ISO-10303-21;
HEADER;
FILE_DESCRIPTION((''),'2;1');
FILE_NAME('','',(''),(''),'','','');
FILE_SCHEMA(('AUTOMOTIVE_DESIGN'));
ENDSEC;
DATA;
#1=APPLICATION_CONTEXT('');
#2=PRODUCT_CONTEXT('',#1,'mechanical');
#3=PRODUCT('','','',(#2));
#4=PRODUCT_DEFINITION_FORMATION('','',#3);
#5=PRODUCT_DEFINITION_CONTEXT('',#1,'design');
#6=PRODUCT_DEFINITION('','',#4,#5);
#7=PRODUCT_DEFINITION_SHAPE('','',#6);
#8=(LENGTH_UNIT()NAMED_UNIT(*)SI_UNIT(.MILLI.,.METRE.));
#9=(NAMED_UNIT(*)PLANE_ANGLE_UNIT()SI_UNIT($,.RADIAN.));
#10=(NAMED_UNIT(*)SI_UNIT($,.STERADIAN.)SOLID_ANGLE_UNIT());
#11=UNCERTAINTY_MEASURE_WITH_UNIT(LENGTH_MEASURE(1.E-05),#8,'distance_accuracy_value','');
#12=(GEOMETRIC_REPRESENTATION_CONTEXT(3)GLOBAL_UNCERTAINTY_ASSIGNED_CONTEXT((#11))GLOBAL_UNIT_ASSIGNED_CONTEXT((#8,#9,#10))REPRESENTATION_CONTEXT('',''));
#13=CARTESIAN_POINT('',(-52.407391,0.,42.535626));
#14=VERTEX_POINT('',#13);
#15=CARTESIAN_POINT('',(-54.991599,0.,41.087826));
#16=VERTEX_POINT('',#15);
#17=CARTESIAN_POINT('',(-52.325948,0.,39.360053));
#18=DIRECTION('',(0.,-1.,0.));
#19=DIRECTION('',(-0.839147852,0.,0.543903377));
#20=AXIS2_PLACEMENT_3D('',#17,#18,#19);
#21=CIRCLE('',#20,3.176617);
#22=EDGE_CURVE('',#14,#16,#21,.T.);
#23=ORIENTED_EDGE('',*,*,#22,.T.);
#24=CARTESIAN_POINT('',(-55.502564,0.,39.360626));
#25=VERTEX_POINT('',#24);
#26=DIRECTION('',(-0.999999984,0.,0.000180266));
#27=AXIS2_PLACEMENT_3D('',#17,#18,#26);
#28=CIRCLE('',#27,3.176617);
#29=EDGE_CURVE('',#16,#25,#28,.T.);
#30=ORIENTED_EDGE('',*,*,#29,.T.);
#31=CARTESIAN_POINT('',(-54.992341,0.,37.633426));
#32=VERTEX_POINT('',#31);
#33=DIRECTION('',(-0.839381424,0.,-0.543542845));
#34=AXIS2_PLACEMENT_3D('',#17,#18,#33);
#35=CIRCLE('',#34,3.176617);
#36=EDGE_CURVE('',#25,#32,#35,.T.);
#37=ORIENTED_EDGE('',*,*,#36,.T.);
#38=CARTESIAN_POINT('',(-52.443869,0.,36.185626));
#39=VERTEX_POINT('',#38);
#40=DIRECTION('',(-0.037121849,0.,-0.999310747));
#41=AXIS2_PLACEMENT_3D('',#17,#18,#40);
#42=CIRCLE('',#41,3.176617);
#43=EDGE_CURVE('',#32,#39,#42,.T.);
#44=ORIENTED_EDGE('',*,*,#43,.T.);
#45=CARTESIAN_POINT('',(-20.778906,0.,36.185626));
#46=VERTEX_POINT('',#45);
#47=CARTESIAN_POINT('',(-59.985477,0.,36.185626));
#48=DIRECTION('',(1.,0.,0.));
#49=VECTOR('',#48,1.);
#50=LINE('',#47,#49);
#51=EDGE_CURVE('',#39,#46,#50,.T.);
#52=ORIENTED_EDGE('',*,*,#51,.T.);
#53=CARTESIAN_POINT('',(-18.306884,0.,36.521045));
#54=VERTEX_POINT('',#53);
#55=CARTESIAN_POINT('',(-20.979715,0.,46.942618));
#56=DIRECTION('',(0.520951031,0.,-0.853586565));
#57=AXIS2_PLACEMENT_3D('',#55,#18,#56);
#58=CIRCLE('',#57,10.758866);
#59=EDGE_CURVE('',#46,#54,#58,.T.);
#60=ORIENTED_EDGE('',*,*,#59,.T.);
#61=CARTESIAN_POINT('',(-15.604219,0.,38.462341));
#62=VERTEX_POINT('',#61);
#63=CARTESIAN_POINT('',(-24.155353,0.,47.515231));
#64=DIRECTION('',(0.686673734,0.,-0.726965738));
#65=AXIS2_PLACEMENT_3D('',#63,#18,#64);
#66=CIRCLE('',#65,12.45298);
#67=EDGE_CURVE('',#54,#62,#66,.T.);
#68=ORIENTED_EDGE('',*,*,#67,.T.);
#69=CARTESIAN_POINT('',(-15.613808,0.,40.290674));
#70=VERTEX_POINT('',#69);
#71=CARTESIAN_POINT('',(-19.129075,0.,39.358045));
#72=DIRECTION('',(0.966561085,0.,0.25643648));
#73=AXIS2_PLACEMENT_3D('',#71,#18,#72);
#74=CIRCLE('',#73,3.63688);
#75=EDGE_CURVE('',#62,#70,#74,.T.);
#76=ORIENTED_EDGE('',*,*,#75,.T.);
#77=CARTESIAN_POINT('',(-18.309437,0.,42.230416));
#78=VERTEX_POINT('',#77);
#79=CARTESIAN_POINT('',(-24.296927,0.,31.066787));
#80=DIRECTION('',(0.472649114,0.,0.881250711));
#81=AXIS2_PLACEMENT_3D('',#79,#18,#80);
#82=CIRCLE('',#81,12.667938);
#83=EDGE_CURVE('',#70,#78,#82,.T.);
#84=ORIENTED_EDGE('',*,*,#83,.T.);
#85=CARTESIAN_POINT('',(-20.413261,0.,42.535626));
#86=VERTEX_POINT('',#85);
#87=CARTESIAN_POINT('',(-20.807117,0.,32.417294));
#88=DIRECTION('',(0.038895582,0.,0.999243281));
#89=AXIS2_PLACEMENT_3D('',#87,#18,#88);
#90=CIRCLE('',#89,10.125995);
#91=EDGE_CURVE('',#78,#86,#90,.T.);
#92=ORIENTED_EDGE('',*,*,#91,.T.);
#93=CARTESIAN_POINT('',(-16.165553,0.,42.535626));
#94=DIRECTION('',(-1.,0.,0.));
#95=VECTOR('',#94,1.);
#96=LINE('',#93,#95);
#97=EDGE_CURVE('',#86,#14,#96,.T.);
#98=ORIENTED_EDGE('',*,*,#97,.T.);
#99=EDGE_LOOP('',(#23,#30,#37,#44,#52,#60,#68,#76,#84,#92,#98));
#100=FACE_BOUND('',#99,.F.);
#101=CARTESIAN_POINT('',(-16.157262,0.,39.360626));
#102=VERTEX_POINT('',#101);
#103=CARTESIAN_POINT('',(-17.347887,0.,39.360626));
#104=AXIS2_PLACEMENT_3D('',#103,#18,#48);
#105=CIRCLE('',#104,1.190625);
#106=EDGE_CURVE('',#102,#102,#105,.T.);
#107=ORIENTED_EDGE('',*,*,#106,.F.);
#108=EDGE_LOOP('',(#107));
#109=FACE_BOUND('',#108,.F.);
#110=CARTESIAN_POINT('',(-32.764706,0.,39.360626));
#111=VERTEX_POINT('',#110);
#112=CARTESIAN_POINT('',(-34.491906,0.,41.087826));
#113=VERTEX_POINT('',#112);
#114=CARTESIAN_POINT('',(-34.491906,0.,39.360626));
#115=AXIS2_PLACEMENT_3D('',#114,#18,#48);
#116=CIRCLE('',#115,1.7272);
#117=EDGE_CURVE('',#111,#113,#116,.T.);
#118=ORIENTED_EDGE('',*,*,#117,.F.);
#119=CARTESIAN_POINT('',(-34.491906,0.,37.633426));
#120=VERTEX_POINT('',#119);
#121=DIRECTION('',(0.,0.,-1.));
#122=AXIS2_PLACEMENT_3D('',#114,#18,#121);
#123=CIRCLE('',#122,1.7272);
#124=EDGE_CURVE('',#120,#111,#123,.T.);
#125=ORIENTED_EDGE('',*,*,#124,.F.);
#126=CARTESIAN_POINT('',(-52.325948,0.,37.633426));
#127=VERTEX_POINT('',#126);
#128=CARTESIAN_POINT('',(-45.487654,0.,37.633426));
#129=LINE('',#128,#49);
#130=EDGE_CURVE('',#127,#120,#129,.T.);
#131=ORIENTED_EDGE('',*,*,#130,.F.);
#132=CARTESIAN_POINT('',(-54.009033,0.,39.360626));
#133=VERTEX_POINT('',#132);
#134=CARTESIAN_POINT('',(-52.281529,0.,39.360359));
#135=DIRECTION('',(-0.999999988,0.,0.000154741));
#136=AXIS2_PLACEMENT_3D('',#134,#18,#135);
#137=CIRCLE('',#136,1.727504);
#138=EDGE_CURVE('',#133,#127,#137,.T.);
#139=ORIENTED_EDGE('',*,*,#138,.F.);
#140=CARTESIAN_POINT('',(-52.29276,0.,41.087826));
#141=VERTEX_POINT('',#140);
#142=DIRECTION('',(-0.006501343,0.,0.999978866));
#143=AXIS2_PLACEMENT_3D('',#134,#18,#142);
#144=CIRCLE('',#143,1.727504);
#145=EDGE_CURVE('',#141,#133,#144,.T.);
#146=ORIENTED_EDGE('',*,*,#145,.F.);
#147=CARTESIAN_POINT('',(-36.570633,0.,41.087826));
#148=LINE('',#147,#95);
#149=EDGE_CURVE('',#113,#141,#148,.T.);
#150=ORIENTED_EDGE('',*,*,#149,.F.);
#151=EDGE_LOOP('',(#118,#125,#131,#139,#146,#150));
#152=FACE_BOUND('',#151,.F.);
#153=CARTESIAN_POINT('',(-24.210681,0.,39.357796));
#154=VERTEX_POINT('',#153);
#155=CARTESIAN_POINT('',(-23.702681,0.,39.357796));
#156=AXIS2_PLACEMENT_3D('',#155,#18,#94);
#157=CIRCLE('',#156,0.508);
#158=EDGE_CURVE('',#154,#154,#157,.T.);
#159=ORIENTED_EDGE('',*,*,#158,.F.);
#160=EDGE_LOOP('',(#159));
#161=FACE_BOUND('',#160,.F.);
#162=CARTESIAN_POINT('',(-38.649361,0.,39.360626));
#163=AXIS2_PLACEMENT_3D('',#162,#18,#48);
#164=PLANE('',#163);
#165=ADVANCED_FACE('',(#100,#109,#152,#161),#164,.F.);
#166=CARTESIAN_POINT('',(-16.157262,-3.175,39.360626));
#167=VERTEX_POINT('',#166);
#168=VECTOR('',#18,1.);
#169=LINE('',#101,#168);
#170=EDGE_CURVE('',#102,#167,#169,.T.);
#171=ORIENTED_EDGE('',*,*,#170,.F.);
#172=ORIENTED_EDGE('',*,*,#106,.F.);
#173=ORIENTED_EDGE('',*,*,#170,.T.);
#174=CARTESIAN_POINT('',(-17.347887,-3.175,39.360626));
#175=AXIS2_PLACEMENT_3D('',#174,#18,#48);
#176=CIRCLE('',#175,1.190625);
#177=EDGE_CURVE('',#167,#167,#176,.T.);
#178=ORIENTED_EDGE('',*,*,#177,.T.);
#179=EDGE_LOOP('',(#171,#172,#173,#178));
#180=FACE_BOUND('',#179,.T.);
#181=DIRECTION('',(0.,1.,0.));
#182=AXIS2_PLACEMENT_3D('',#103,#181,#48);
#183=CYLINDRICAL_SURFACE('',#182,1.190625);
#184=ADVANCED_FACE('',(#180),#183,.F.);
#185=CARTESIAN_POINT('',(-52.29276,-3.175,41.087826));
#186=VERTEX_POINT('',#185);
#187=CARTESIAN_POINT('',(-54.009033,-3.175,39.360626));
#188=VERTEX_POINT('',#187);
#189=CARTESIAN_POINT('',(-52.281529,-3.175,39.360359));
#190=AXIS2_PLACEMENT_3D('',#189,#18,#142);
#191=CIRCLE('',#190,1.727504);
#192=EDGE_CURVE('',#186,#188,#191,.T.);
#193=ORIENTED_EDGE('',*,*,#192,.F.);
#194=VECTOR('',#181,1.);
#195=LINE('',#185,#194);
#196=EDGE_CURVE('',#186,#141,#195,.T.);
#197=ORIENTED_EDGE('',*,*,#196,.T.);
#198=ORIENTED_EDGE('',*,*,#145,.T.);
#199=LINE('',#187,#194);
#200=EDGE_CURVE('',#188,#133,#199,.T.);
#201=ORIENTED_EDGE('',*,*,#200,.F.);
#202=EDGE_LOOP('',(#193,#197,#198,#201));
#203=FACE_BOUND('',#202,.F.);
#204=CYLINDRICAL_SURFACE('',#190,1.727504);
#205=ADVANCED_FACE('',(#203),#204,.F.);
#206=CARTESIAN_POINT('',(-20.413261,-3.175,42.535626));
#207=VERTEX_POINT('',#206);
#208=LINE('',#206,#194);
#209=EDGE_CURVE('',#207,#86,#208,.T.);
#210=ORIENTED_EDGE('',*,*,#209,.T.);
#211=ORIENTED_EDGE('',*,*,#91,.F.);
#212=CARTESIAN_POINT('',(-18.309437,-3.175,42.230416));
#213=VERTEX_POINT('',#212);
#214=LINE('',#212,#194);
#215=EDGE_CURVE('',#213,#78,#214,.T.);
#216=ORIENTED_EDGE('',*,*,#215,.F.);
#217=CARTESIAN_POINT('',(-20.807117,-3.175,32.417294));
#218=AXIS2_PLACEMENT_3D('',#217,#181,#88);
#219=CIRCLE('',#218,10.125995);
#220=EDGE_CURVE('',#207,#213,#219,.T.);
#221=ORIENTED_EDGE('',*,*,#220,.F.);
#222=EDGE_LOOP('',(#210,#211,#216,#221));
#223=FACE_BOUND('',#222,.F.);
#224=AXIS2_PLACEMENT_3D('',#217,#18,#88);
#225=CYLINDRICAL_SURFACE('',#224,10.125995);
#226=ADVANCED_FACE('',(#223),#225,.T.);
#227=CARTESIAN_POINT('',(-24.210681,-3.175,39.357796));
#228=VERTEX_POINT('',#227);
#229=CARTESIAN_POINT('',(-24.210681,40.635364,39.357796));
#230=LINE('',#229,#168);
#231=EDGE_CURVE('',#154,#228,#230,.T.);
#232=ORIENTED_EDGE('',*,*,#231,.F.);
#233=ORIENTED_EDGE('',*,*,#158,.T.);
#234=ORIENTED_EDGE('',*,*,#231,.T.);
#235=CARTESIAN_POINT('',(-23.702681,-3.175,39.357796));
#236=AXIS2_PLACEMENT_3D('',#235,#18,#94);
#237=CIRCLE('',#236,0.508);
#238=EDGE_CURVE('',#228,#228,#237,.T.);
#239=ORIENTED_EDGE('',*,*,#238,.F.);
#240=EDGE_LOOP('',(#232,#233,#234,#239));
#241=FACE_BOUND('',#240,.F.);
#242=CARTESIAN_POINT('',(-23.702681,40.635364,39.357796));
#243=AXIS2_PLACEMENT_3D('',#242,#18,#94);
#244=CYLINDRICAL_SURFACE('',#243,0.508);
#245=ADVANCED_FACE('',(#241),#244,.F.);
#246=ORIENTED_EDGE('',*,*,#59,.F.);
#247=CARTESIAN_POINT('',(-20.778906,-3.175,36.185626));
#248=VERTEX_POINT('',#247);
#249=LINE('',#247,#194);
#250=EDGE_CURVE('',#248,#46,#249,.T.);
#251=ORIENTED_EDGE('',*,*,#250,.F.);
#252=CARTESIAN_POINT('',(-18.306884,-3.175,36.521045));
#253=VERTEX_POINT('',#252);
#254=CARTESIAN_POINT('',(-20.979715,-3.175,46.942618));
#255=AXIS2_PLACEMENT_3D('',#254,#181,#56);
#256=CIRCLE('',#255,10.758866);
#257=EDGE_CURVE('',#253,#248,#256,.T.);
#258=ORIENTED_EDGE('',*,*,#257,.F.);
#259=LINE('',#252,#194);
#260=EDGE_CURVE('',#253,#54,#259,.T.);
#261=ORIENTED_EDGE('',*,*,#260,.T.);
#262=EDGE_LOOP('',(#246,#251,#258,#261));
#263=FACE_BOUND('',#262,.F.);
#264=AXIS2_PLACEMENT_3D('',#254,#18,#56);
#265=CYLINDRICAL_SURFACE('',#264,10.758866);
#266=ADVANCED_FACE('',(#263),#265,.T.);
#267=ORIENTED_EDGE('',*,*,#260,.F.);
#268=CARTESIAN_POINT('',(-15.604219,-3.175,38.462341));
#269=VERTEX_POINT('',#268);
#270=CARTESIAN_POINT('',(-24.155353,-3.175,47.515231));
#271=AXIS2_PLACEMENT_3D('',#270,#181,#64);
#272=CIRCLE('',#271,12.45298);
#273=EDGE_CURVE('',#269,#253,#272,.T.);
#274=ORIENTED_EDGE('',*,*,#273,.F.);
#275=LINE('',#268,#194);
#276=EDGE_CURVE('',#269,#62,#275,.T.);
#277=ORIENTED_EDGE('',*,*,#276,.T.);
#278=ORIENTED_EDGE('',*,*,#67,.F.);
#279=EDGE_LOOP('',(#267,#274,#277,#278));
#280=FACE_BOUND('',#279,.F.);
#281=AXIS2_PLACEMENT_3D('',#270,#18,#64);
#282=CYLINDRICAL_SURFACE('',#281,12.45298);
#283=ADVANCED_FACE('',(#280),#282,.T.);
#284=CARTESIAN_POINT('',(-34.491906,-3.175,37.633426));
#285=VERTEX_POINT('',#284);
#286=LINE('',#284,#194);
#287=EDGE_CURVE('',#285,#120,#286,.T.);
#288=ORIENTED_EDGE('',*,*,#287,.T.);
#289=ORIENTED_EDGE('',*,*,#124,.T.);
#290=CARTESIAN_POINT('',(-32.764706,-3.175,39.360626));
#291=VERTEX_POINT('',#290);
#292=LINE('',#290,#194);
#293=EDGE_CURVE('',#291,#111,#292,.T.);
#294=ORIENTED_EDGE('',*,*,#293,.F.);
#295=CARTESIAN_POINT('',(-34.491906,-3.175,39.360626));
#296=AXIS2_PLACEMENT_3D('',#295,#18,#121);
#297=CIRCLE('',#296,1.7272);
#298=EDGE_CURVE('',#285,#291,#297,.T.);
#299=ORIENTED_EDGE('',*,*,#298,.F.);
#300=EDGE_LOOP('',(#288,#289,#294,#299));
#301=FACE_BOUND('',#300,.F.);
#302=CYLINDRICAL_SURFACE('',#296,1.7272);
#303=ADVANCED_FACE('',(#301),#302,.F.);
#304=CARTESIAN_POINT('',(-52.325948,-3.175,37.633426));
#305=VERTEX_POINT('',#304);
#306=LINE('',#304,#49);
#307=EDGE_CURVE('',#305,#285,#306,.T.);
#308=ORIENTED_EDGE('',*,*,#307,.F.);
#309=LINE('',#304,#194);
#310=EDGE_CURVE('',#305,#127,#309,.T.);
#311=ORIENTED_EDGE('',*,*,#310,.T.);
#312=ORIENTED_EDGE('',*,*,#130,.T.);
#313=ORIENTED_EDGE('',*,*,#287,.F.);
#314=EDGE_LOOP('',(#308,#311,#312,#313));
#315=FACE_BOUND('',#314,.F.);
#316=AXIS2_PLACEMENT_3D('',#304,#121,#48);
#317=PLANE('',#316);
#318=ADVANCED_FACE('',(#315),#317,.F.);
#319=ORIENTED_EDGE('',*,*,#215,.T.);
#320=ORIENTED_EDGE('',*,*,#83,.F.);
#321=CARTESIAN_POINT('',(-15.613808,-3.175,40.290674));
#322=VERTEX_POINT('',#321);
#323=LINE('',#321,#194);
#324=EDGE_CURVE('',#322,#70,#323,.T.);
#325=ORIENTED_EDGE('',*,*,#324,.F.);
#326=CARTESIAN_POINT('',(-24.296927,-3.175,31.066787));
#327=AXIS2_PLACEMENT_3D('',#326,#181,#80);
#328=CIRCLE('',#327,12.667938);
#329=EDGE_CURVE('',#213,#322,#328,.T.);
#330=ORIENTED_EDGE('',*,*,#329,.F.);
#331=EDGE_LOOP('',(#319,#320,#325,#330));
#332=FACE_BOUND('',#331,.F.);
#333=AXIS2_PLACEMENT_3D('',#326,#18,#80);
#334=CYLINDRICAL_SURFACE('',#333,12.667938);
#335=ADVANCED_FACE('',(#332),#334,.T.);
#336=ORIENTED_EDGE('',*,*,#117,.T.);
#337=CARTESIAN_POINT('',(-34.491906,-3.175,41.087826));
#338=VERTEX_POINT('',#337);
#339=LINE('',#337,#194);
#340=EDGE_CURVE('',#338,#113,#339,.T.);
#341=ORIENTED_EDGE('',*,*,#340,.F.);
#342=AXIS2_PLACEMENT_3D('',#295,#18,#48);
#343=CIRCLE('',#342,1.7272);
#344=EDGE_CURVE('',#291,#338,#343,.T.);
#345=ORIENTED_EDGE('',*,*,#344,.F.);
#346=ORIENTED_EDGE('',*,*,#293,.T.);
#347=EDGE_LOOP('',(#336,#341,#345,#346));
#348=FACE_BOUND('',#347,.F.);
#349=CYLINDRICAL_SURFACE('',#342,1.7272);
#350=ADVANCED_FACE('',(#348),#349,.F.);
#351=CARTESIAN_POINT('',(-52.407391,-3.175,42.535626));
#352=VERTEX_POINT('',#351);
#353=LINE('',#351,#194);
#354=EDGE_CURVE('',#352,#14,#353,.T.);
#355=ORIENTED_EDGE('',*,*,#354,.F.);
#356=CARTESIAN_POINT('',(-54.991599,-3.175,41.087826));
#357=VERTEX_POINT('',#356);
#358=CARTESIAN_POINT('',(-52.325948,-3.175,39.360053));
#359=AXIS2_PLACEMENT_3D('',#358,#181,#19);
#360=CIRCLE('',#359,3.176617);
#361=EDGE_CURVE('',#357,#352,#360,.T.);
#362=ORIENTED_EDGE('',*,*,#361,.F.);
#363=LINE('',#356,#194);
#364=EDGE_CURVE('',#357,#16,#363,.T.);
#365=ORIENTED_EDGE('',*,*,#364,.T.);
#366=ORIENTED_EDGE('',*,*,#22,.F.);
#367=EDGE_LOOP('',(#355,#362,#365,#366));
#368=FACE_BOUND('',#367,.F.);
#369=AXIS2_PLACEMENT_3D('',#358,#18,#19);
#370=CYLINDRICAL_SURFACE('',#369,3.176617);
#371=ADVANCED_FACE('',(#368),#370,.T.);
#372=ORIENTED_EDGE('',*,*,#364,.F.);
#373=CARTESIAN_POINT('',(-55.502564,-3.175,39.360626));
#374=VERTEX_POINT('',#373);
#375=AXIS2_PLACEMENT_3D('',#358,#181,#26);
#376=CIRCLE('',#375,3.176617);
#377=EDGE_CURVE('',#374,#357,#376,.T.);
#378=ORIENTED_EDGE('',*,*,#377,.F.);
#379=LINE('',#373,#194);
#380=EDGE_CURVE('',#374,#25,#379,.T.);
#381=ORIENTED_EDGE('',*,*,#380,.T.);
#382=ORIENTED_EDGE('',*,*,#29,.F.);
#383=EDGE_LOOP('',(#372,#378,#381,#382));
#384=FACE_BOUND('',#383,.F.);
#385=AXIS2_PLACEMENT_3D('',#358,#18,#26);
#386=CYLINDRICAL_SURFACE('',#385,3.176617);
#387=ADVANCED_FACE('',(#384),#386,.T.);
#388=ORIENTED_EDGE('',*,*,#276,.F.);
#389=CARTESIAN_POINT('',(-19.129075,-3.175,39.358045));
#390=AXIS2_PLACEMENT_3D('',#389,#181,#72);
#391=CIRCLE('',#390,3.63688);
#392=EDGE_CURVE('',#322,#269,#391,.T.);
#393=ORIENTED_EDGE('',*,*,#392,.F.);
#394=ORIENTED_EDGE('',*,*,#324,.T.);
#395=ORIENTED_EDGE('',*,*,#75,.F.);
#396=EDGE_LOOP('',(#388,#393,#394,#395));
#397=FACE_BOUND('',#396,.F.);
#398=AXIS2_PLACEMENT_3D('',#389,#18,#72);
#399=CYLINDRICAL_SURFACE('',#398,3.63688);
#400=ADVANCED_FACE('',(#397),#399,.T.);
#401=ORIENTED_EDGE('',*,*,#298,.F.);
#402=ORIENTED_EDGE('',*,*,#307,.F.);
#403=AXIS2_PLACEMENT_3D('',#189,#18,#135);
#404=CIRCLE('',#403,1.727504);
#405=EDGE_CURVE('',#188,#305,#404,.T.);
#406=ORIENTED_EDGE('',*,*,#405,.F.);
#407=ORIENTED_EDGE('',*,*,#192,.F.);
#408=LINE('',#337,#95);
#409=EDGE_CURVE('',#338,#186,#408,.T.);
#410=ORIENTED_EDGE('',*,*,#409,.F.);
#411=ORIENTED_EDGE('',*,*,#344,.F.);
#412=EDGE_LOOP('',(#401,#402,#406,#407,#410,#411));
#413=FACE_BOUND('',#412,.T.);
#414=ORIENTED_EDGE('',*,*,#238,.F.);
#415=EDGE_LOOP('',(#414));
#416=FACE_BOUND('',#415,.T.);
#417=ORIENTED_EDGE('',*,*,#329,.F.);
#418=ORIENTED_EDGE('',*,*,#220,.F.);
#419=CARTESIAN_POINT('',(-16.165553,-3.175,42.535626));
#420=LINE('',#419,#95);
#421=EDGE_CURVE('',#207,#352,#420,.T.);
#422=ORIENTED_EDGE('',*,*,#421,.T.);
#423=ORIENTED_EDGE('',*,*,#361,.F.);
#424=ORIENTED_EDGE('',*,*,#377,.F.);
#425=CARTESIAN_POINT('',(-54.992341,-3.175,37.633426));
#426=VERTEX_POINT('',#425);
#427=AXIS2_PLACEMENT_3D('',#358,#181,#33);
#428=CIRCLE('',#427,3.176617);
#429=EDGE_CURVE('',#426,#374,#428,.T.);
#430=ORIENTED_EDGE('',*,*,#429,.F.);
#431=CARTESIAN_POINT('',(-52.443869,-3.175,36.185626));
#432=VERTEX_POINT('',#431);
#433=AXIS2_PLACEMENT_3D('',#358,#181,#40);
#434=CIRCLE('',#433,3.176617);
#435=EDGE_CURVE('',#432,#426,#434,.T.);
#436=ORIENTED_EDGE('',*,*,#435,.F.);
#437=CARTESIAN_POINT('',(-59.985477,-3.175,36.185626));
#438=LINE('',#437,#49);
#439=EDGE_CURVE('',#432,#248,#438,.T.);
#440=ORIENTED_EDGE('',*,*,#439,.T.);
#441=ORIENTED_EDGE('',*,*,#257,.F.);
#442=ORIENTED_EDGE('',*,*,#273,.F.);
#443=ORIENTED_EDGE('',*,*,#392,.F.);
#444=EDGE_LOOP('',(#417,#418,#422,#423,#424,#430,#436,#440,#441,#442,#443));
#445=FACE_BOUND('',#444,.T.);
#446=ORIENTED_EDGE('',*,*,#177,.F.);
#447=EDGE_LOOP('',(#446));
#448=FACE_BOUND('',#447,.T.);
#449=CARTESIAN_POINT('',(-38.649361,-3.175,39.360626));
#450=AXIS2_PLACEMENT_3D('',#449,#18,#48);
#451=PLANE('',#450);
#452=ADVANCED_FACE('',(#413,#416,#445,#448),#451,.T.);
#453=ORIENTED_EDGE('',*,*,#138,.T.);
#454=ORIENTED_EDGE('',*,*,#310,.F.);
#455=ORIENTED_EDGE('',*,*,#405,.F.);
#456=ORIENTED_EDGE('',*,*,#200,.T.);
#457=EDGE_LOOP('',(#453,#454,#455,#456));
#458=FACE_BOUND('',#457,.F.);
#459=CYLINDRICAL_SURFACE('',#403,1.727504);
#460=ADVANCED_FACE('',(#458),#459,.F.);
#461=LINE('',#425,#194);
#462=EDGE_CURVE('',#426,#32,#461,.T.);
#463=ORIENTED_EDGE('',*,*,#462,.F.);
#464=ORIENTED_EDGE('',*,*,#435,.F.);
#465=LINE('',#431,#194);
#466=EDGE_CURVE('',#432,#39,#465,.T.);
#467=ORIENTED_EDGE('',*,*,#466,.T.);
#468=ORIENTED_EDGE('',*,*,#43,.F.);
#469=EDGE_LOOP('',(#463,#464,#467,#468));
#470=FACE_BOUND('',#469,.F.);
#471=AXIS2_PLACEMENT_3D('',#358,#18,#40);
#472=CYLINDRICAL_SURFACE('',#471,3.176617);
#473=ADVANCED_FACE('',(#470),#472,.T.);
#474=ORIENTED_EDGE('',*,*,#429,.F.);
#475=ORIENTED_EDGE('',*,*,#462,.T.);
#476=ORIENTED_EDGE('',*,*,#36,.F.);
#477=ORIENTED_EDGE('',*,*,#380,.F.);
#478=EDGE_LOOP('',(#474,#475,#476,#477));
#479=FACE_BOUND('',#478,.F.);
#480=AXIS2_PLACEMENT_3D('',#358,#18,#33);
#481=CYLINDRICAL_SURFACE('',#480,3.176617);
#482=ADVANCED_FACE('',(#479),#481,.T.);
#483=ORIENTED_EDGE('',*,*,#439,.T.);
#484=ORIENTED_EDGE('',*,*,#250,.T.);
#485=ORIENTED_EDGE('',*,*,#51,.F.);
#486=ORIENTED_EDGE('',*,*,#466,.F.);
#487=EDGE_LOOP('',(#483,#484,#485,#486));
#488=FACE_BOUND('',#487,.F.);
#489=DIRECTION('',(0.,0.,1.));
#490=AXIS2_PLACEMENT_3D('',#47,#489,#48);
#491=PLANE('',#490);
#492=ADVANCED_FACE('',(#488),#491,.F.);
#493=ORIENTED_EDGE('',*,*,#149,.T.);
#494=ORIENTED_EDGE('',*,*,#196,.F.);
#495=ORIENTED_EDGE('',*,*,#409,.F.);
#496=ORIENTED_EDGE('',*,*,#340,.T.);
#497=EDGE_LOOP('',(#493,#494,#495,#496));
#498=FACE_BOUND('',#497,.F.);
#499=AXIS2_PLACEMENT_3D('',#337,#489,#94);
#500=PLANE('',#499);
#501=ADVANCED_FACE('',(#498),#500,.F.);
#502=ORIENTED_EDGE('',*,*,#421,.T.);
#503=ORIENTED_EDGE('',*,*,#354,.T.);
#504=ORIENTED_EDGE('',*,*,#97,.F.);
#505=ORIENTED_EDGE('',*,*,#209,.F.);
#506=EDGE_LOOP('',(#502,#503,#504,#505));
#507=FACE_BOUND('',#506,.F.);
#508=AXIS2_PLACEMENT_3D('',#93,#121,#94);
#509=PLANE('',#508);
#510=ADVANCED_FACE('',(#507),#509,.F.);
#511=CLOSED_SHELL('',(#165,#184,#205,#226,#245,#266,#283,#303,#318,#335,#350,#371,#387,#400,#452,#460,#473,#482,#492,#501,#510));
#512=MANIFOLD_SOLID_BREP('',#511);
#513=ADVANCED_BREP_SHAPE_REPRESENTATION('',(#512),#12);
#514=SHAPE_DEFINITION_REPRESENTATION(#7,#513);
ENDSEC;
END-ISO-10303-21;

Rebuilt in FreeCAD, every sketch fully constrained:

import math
import FreeCAD as App
import Part
import Sketcher

V = App.Vector
Q = App.Units.Quantity

doc = App.newDocument("Part")
body = doc.addObject("PartDesign::Body", "Body")

# Sketch on XZ plane
sketch1 = body.newObject("Sketcher::SketchObject", "Sketch")
sketch1.AttachmentSupport = (doc.getObject("XZ_Plane"), [""])
sketch1.MapMode = "FlatFace"
sketch1.addGeometry([
    Part.LineSegment(V(-60, 36.2, 0), V(-16.2, 36.2, 0)),  # 0
    Part.LineSegment(V(-16.2, 36.2, 0), V(-14.5, 39.4, 0)),  # 1
    Part.LineSegment(V(-14.5, 39.4, 0), V(-16.2, 42.5, 0)),  # 2
    Part.LineSegment(V(-16.2, 42.5, 0), V(-60, 42.5, 0)),  # 3
    Part.ArcOfCircle(Part.Circle(V(-59.9, 39.4, 0), V(0, 0, 1), 3.2), math.radians(92), math.radians(268)),  # 4
    Part.Circle(V(-17.3, 39.4, 0), V(0, 0, 1), 1.2),  # 5
], False)
sketch1.addConstraint([
    Sketcher.Constraint("Coincident", 0, 2, 1, 1),
    Sketcher.Constraint("Coincident", 1, 2, 2, 1),
    Sketcher.Constraint("Coincident", 2, 2, 3, 1),
    Sketcher.Constraint("Coincident", 3, 2, 4, 1),
    Sketcher.Constraint("Coincident", 4, 2, 0, 1),
    Sketcher.Constraint("Horizontal", 0),
    Sketcher.Constraint("Horizontal", 3),
    Sketcher.Constraint("Horizontal", 4, 3, 5, 3),
    Sketcher.Constraint("Horizontal", 5, 3, 1, 2),
    Sketcher.Constraint("Vertical", 0, 2, 2, 2),
    Sketcher.Constraint("Vertical", 3, 2, 4, 2),
    Sketcher.Constraint("Diameter", 5, Q("0.09375 in")),
    Sketcher.Constraint("DistanceY", 0, 2, 2, 2, Q("0.25 in")),
    Sketcher.Constraint("Radius", 4, Q("3.176379 mm")),
    Sketcher.Constraint("DistanceX", 0, 1, 0, 2, Q("43.819925 mm")),
    Sketcher.Constraint("DistanceX", 4, 3, 5, 3, Q("42.544018 mm")),
    Sketcher.Constraint("DistanceX", 0, 2, 1, 2, Q("1.62754 mm")),
    Sketcher.Constraint("DistanceX", 4, 3, -1, 1, Q("59.891906 mm")),
    Sketcher.Constraint("DistanceY", -1, 1, 4, 3, Q("39.360626 mm")),
])
pad1 = body.newObject("PartDesign::Pad", "Pad")
pad1.Profile = sketch1
pad1.Length = Q("0.125 in")

# Sketch on XZ plane
sketch2 = body.newObject("Sketcher::SketchObject", "Sketch001")
sketch2.AttachmentSupport = (doc.getObject("XZ_Plane"), [""])
sketch2.MapMode = "FlatFace"
sketch2.AttachmentOffset = App.Placement(V(0, 0, 0.125 * 25.4), App.Rotation())
sketch2.addGeometry([
    Part.ArcOfCircle(Part.Circle(V(-18.3, 39.3, 0), V(0, 0, 1), 3.3), math.radians(-74), math.radians(-29)),  # 0
    Part.LineSegment(V(-17.3, 36.2, 0), V(-16.2, 36.2, 0)),  # 1
    Part.LineSegment(V(-16.2, 36.2, 0), V(-15.4, 37.8, 0)),  # 2
    Part.LineSegment(V(-15.4, 37.8, 0), V(-14.5, 39.4, 0)),  # 3
    Part.LineSegment(V(-14.5, 39.4, 0), V(-15.4, 40.9, 0)),  # 4
    Part.LineSegment(V(-15.4, 40.9, 0), V(-16.2, 42.5, 0)),  # 5
    Part.LineSegment(V(-16.2, 42.5, 0), V(-17.5, 42.5, 0)),  # 6
    Part.ArcOfCircle(Part.Circle(V(-18.3, 39.3, 0), V(0, 0, 1), 3.3), math.radians(30), math.radians(76)),  # 7
    Part.ArcOfCircle(Part.Circle(V(-18.3, 39.3, 0), V(0, 0, 1), 3.3), math.radians(-29), math.radians(30)),  # 8
], False)
sketch2.addConstraint([
    Sketcher.Constraint("Coincident", 0, 1, 1, 1),
    Sketcher.Constraint("Coincident", 1, 2, 2, 1),
    Sketcher.Constraint("Coincident", 2, 2, 3, 1),
    Sketcher.Constraint("Coincident", 3, 2, 4, 1),
    Sketcher.Constraint("Coincident", 4, 2, 5, 1),
    Sketcher.Constraint("Coincident", 5, 2, 6, 1),
    Sketcher.Constraint("Coincident", 6, 2, 7, 2),
    Sketcher.Constraint("Tangent", 7, 1, 8, 2),
    Sketcher.Constraint("Tangent", 8, 1, 0, 2),
    Sketcher.Constraint("Horizontal", 1),
    Sketcher.Constraint("Horizontal", 6),
    Sketcher.Constraint("Coincident", 7, 3, 0, 3),
    Sketcher.Constraint("Parallel", 2, 3),
    Sketcher.Constraint("Parallel", 4, 5),
    Sketcher.Constraint("Vertical", 2, 2, 4, 2),
    Sketcher.Constraint("Vertical", 1, 2, 5, 2),
    Sketcher.Constraint("Equal", 2, 3),
    Sketcher.Constraint("Equal", 3, 4),
    Sketcher.Constraint("DistanceY", 1, 2, 2, 2, Q("0.0625 in")),
    Sketcher.Constraint("Radius", 0, Q("3.292503 mm")),
    Sketcher.Constraint("DistanceX", 0, 3, 0, 1, Q("0.930201 mm")),
    Sketcher.Constraint("Distance", 2, Q("1.783922 mm")),
    Sketcher.Constraint("DistanceX", 1, 1, 1, 2, Q("1.165006 mm")),
    Sketcher.Constraint("DistanceX", 0, 3, -1, 1, Q("18.26076 mm")),
    Sketcher.Constraint("DistanceX", 7, 1, -1, 1, Q("15.40434 mm")),
    Sketcher.Constraint("DistanceY", -1, 1, 7, 1, Q("40.981508 mm")),
    Sketcher.Constraint("DistanceX", 8, 1, 2, 2, Q("0.023089 mm")),
])
pocket1 = body.newObject("PartDesign::Pocket", "Pocket")
pocket1.Profile = sketch2
pocket1.Length = Q("1 in")

# Sketch on XZ plane
sketch3 = body.newObject("Sketcher::SketchObject", "Sketch002")
sketch3.AttachmentSupport = (doc.getObject("XZ_Plane"), [""])
sketch3.MapMode = "FlatFace"
sketch3.AttachmentOffset = App.Placement(V(0, 0, 0.125 * 25.4), App.Rotation())
sketch3.addGeometry([
    Part.ArcOfCircle(Part.Circle(V(-20.807, 32.417, 0), V(0, 0, 1), 10.126), math.radians(58), math.radians(88)),  # 0
    Part.ArcOfCircle(Part.Circle(V(-18.261, 39.344, 0), V(0, 0, 1), 3.293), math.radians(30), math.radians(76)),  # 1
    Part.LineSegment(V(-17.452, 42.536, 0), V(-20.413, 42.536, 0)),  # 2
    Part.ArcOfCircle(Part.Circle(V(-18.261, 39.344, 0), V(0, 0, 1), 3.293), math.radians(-29), math.radians(30)),  # 3
    Part.ArcOfCircle(Part.Circle(V(-20.98, 46.943, 0), V(0, 0, 1), 10.759), math.radians(-58.6), math.radians(-58.46)),  # 4
    Part.LineSegment(V(-15.352, 37.773, 0), V(-14.538, 39.361, 0)),  # 5
    Part.LineSegment(V(-14.538, 39.361, 0), V(-15.352, 40.948, 0)),  # 6
    Part.ArcOfCircle(Part.Circle(V(-20.807, 32.417, 0), V(0, 0, 1), 10.126), math.radians(57.4), math.radians(57.75)),  # 7
    Part.LineSegment(V(-20.779, 36.186, 0), V(-17.331, 36.186, 0)),  # 8
    Part.ArcOfCircle(Part.Circle(V(-18.261, 39.344, 0), V(0, 0, 1), 3.293), math.radians(-74), math.radians(-29)),  # 9
    Part.ArcOfCircle(Part.Circle(V(-20.98, 46.943, 0), V(0, 0, 1), 10.759), math.radians(-89), math.radians(-59)),  # 10
], False)
sketch3.addConstraint([
    Sketcher.Constraint("Coincident", 0, 1, 1, 1),
    Sketcher.Constraint("Coincident", 1, 2, 2, 1),
    Sketcher.Constraint("Coincident", 2, 2, 0, 2),
    Sketcher.Constraint("Coincident", 3, 1, 4, 1),
    Sketcher.Constraint("Coincident", 4, 2, 5, 1),
    Sketcher.Constraint("Coincident", 5, 2, 6, 1),
    Sketcher.Constraint("Coincident", 6, 2, 7, 1),
    Sketcher.Constraint("Coincident", 7, 2, 3, 2),
    Sketcher.Constraint("Coincident", 8, 2, 9, 1),
    Sketcher.Constraint("Coincident", 9, 2, 10, 2),
    Sketcher.Constraint("Coincident", 10, 1, 8, 1),
    Sketcher.Constraint("Horizontal", 2),
    Sketcher.Constraint("Horizontal", 8),
    Sketcher.Constraint("Coincident", 3, 3, 1, 3),
    Sketcher.Constraint("Coincident", 7, 3, 0, 3),
    Sketcher.Constraint("Coincident", 9, 3, 1, 3),
    Sketcher.Constraint("Coincident", 7, 2, 0, 1),
    Sketcher.Constraint("Coincident", 9, 2, 3, 1),
    Sketcher.Constraint("Vertical", 4, 2, 6, 2),
    Sketcher.Constraint("Equal", 5, 6),
    Sketcher.Constraint("Radius", 7, Q("10.126001 mm")),
    Sketcher.Constraint("DistanceY", 4, 2, 5, 2, Q("0.0625 in")),
    Sketcher.Constraint("DistanceY", 6, 2, 1, 2, Q("0.0625 in")),
    Sketcher.Constraint("DistanceY", 8, 2, 4, 2, Q("0.0625 in")),
    Sketcher.Constraint("Radius", 1, Q("3.292503 mm")),
    Sketcher.Constraint("Radius", 4, Q("10.758887 mm")),
    Sketcher.Constraint("Radius", 10, Q("10.758866 mm")),
    Sketcher.Constraint("DistanceX", 2, 2, 3, 3, Q("2.152501 mm")),
    Sketcher.Constraint("DistanceX", 9, 3, 8, 2, Q("0.930201 mm")),
    Sketcher.Constraint("Distance", 5, Q("1.783922 mm")),
    Sketcher.Constraint("DistanceX", 8, 1, 8, 2, Q("3.448347 mm")),
    Sketcher.Constraint("DistanceX", 1, 3, -1, 1, Q("18.26076 mm")),
    Sketcher.Constraint("DistanceX", 7, 3, -1, 1, Q("20.807121 mm")),
    Sketcher.Constraint("DistanceY", -1, 1, 7, 3, Q("32.417288 mm")),
    Sketcher.Constraint("DistanceY", 3, 3, 4, 3, Q("7.598639 mm")),
])
pocket2 = body.newObject("PartDesign::Pocket", "Pocket001")
pocket2.Profile = sketch3
pocket2.Length = Q("1 in")

# Sketch on XZ plane
sketch4 = body.newObject("Sketcher::SketchObject", "Sketch003")
sketch4.AttachmentSupport = (doc.getObject("XZ_Plane"), [""])
sketch4.MapMode = "FlatFace"
sketch4.AttachmentOffset = App.Placement(V(0, 0, 0.125 * 25.4), App.Rotation())
sketch4.addGeometry([
    Part.LineSegment(V(-60, 36.2, 0), V(-52.4, 36.2, 0)),  # 0
    Part.ArcOfCircle(Part.Circle(V(-52.3, 39.4, 0), V(0, 0, 1), 3.2), math.radians(-147), math.radians(-92)),  # 1
    Part.ArcOfCircle(Part.Circle(V(-52.3, 39.4, 0), V(0, 0, 1), 3.2), math.radians(180), math.radians(213)),  # 2
    Part.ArcOfCircle(Part.Circle(V(-52.3, 39.4, 0), V(0, 0, 1), 3.2), math.radians(147), math.radians(180)),  # 3
    Part.ArcOfCircle(Part.Circle(V(-52.3, 39.4, 0), V(0, 0, 1), 3.2), math.radians(91), math.radians(147)),  # 4
    Part.LineSegment(V(-52.4, 42.5, 0), V(-60, 42.5, 0)),  # 5
    Part.ArcOfCircle(Part.Circle(V(-59.9, 39.4, 0), V(0, 0, 1), 3.2), math.radians(92), math.radians(268)),  # 6
], False)
sketch4.addConstraint([
    Sketcher.Constraint("Coincident", 0, 2, 1, 2),
    Sketcher.Constraint("Tangent", 1, 1, 2, 2),
    Sketcher.Constraint("Tangent", 2, 1, 3, 2),
    Sketcher.Constraint("Tangent", 3, 1, 4, 2),
    Sketcher.Constraint("Coincident", 4, 1, 5, 1),
    Sketcher.Constraint("Coincident", 5, 2, 6, 1),
    Sketcher.Constraint("Coincident", 6, 2, 0, 1),
    Sketcher.Constraint("Horizontal", 0),
    Sketcher.Constraint("Horizontal", 5),
    Sketcher.Constraint("Coincident", 3, 3, 1, 3),
    Sketcher.Constraint("Equal", 3, 4),
    Sketcher.Constraint("Horizontal", 6, 3, 2, 1),
    Sketcher.Constraint("Vertical", 5, 2, 6, 2),
    Sketcher.Constraint("DistanceY", 6, 2, 5, 2, Q("0.25 in")),
    Sketcher.Constraint("Radius", 6, Q("3.176379 mm")),
    Sketcher.Constraint("DistanceY", 0, 2, 1, 1, Q("0.057 in")),
    Sketcher.Constraint("DistanceY", 2, 1, 3, 1, Q("0.068 in")),
    Sketcher.Constraint("Radius", 1, Q("3.176617 mm")),
    Sketcher.Constraint("DistanceX", 0, 1, 0, 2, Q("7.541608 mm")),
    Sketcher.Constraint("DistanceX", 3, 1, -1, 1, Q("54.991599 mm")),
    Sketcher.Constraint("DistanceX", 5, 2, 5, 1, Q("7.578086 mm")),
    Sketcher.Constraint("DistanceY", -1, 1, 1, 3, Q("39.360053 mm")),
])
pocket3 = body.newObject("PartDesign::Pocket", "Pocket002")
pocket3.Profile = sketch4
pocket3.Length = Q("1 in")

# Sketch on XZ plane
sketch5 = body.newObject("Sketcher::SketchObject", "Sketch004")
sketch5.AttachmentSupport = (doc.getObject("XZ_Plane"), [""])
sketch5.MapMode = "FlatFace"
sketch5.AttachmentOffset = App.Placement(V(0, 0, 0.125 * 25.4), App.Rotation())
sketch5.addGeometry([
    Part.ArcOfCircle(Part.Circle(V(-52.3, 39.4, 0), V(0, 0, 1), 1.7), math.radians(90), math.radians(180)),  # 0
    Part.ArcOfCircle(Part.Circle(V(-52.3, 39.4, 0), V(0, 0, 1), 1.7), math.radians(180), math.radians(269)),  # 1
    Part.LineSegment(V(-52.3, 37.6, 0), V(-34.5, 37.6, 0)),  # 2
    Part.ArcOfCircle(Part.Circle(V(-34.5, 39.4, 0), V(0, 0, 1), 1.7), math.radians(-90), math.radians(0)),  # 3
    Part.ArcOfCircle(Part.Circle(V(-34.5, 39.4, 0), V(0, 0, 1), 1.7), math.radians(0), math.radians(90)),  # 4
    Part.LineSegment(V(-34.5, 41.1, 0), V(-52.3, 41.1, 0)),  # 5
], False)
sketch5.addConstraint([
    Sketcher.Constraint("Tangent", 0, 2, 1, 1),
    Sketcher.Constraint("Coincident", 1, 2, 2, 1),
    Sketcher.Constraint("Tangent", 2, 2, 3, 1),
    Sketcher.Constraint("Tangent", 3, 2, 4, 1),
    Sketcher.Constraint("Tangent", 4, 2, 5, 1),
    Sketcher.Constraint("Coincident", 5, 2, 0, 1),
    Sketcher.Constraint("Horizontal", 2),
    Sketcher.Constraint("Horizontal", 5),
    Sketcher.Constraint("Equal", 0, 1),
    Sketcher.Constraint("Equal", 3, 4),
    Sketcher.Constraint("Horizontal", 4, 3, 0, 2),
    Sketcher.Constraint("Horizontal", 0, 2, 3, 2),
    Sketcher.Constraint("Radius", 3, Q("0.068 in")),
    Sketcher.Constraint("Radius", 0, Q("1.727504 mm")),
    Sketcher.Constraint("DistanceX", 2, 1, 2, 2, Q("17.834042 mm")),
    Sketcher.Constraint("DistanceX", 5, 2, 5, 1, Q("17.800855 mm")),
    Sketcher.Constraint("DistanceX", 0, 3, -1, 1, Q("52.281529 mm")),
    Sketcher.Constraint("DistanceY", -1, 1, 0, 3, Q("39.360359 mm")),
])
pocket4 = body.newObject("PartDesign::Pocket", "Pocket003")
pocket4.Profile = sketch5
pocket4.Length = Q("1 in")

# Sketch on XZ plane
sketch6 = body.newObject("Sketcher::SketchObject", "Sketch005")
sketch6.AttachmentSupport = (doc.getObject("XZ_Plane"), [""])
sketch6.MapMode = "FlatFace"
sketch6.AttachmentOffset = App.Placement(V(0, 0, 0.125 * 25.4), App.Rotation())
sketch6.addGeometry([
    Part.ArcOfCircle(Part.Circle(V(-19.1, 39.4, 0), V(0, 0, 1), 3.6), math.radians(-33.35), math.radians(-14.26)),  # 0
    Part.ArcOfCircle(Part.Circle(V(-21, 46.9, 0), V(0, 0, 1), 10.8), math.radians(-62.98), math.radians(-58.6)),  # 1
    Part.ArcOfCircle(Part.Circle(V(-18.3, 39.3, 0), V(0, 0, 1), 3.3), math.radians(-29), math.radians(-4)),  # 2
    Part.ArcOfCircle(Part.Circle(V(-18.3, 39.3, 0), V(0, 0, 1), 3.3), math.radians(-4.28), math.radians(5.39)),  # 3
    Part.ArcOfCircle(Part.Circle(V(-18.3, 39.3, 0), V(0, 0, 1), 3.3), math.radians(5), math.radians(30)),  # 4
    Part.ArcOfCircle(Part.Circle(V(-20.8, 32.4, 0), V(0, 0, 1), 10.1), math.radians(57.75), math.radians(62.38)),  # 5
    Part.ArcOfCircle(Part.Circle(V(-19.1, 39.4, 0), V(0, 0, 1), 3.6), math.radians(14.86), math.radians(33.95)),  # 6
    Part.ArcOfCircle(Part.Circle(V(-19.1, 39.4, 0), V(0, 0, 1), 3.6), math.radians(-14), math.radians(15)),  # 7
], False)
sketch6.addConstraint([
    Sketcher.Constraint("Coincident", 0, 1, 1, 1),
    Sketcher.Constraint("Coincident", 1, 2, 2, 1),
    Sketcher.Constraint("Tangent", 2, 2, 3, 1),
    Sketcher.Constraint("Tangent", 3, 2, 4, 1),
    Sketcher.Constraint("Coincident", 4, 2, 5, 1),
    Sketcher.Constraint("Coincident", 5, 2, 6, 2),
    Sketcher.Constraint("Tangent", 6, 1, 7, 2),
    Sketcher.Constraint("Tangent", 7, 1, 0, 2),
    Sketcher.Constraint("Coincident", 4, 3, 2, 3),
    Sketcher.Constraint("Coincident", 6, 3, 0, 3),
    Sketcher.Constraint("Radius", 0, Q("3.63688 mm")),
    Sketcher.Constraint("Radius", 1, Q("10.758866 mm")),
    Sketcher.Constraint("Radius", 2, Q("3.292503 mm")),
    Sketcher.Constraint("Radius", 5, Q("10.125995 mm")),
    Sketcher.Constraint("DistanceY", 3, 3, 5, 2, Q("2.045098 mm")),
    Sketcher.Constraint("DistanceY", 7, 1, 2, 2, Q("0.636099 mm")),
    Sketcher.Constraint("DistanceY", -1, 1, 1, 3, Q("46.942618 mm")),
    Sketcher.Constraint("DistanceX", 2, 3, -1, 1, Q("18.26076 mm")),
    Sketcher.Constraint("DistanceX", 0, 1, -1, 1, Q("16.091208 mm")),
    Sketcher.Constraint("DistanceY", -1, 1, 0, 1, Q("37.35848 mm")),
    Sketcher.Constraint("DistanceY", -1, 1, 2, 2, Q("39.09844 mm")),
    Sketcher.Constraint("DistanceX", 3, 2, -1, 1, Q("14.982791 mm")),
    Sketcher.Constraint("DistanceX", 4, 2, -1, 1, Q("15.40434 mm")),
    Sketcher.Constraint("DistanceY", -1, 1, 4, 2, Q("40.981508 mm")),
    Sketcher.Constraint("DistanceX", 6, 1, -1, 1, Q("15.613808 mm")),
    Sketcher.Constraint("DistanceX", 7, 1, -1, 1, Q("15.604219 mm")),
])
pocket5 = body.newObject("PartDesign::Pocket", "Pocket004")
pocket5.Profile = sketch6
pocket5.Length = Q("1 in")

# Sketch on XZ plane
sketch7 = body.newObject("Sketcher::SketchObject", "Sketch006")
sketch7.AttachmentSupport = (doc.getObject("XZ_Plane"), [""])
sketch7.MapMode = "FlatFace"
sketch7.AttachmentOffset = App.Placement(V(0, 0, 0.125 * 25.4), App.Rotation())
sketch7.addGeometry([
    Part.ArcOfCircle(Part.Circle(V(-24.3, 31.1, 0), V(0, 0, 1), 12.7), math.radians(46.73), math.radians(61.79)),  # 0
    Part.ArcOfCircle(Part.Circle(V(-19.1, 39.4, 0), V(0, 0, 1), 3.6), math.radians(14.86), math.radians(33.95)),  # 1
    Part.ArcOfCircle(Part.Circle(V(-20.8, 32.4, 0), V(0, 0, 1), 10.1), math.radians(62.38), math.radians(75.72)),  # 2
    Part.ArcOfCircle(Part.Circle(V(-21, 46.9, 0), V(0, 0, 1), 10.8), math.radians(-75.62), math.radians(-62.98)),  # 3
    Part.ArcOfCircle(Part.Circle(V(-19.1, 39.4, 0), V(0, 0, 1), 3.6), math.radians(-33.35), math.radians(-14.26)),  # 4
    Part.ArcOfCircle(Part.Circle(V(-24.2, 47.5, 0), V(0, 0, 1), 12.5), math.radians(-61.99), math.radians(-46.63)),  # 5
], False)
sketch7.addConstraint([
    Sketcher.Constraint("Coincident", 0, 1, 1, 1),
    Sketcher.Constraint("Coincident", 1, 2, 2, 1),
    Sketcher.Constraint("Coincident", 2, 2, 0, 2),
    Sketcher.Constraint("Coincident", 3, 2, 4, 1),
    Sketcher.Constraint("Coincident", 4, 2, 5, 2),
    Sketcher.Constraint("Coincident", 5, 1, 3, 1),
    Sketcher.Constraint("Coincident", 4, 3, 1, 3),
    Sketcher.Constraint("Equal", 1, 4),
    Sketcher.Constraint("Radius", 1, Q("3.63688 mm")),
    Sketcher.Constraint("Radius", 5, Q("12.45298 mm")),
    Sketcher.Constraint("Radius", 0, Q("12.667938 mm")),
    Sketcher.Constraint("Radius", 2, Q("10.125995 mm")),
    Sketcher.Constraint("Radius", 3, Q("10.758866 mm")),
    Sketcher.Constraint("DistanceX", 3, 2, 0, 1, Q("0.4774 mm")),
    Sketcher.Constraint("DistanceY", 5, 1, 1, 3, Q("2.837 mm")),
    Sketcher.Constraint("DistanceY", -1, 1, 3, 3, Q("46.942618 mm")),
    Sketcher.Constraint("DistanceY", -1, 1, 5, 3, Q("47.515231 mm")),
    Sketcher.Constraint("DistanceX", 0, 1, -1, 1, Q("15.613808 mm")),
    Sketcher.Constraint("DistanceY", -1, 1, 3, 2, Q("37.35848 mm")),
    Sketcher.Constraint("DistanceX", 4, 2, -1, 1, Q("15.604219 mm")),
    Sketcher.Constraint("DistanceY", 0, 3, 1, 3, Q("8.291258 mm")),
    Sketcher.Constraint("DistanceX", 0, 3, 2, 3, Q("3.48981 mm")),
    Sketcher.Constraint("DistanceY", 2, 3, 1, 3, Q("6.940752 mm")),
])
pocket6 = body.newObject("PartDesign::Pocket", "Pocket005")
pocket6.Profile = sketch7
pocket6.Length = Q("0.85 in")

# Sketch on XZ plane
sketch8 = body.newObject("Sketcher::SketchObject", "Sketch007")
sketch8.AttachmentSupport = (doc.getObject("XZ_Plane"), [""])
sketch8.MapMode = "FlatFace"
sketch8.addGeometry(Part.Circle(V(-23.7, 39.4, 0), V(0, 0, 1), 0.5), False)
sketch8.addConstraint([
    Sketcher.Constraint("Diameter", 0, Q("0.04 in")),
    Sketcher.Constraint("DistanceX", 0, 3, -1, 1, Q("23.702681 mm")),
    Sketcher.Constraint("DistanceY", -1, 1, 0, 3, Q("39.357796 mm")),
])
doc.recompute()
hole = body.newObject("PartDesign::Hole", "Hole")
hole.Profile = sketch8
hole.ThreadType = "None"
hole.Diameter = Q("0.04 in")
hole.DepthType = "ThroughAll"
hole.Reversed = True

doc.recompute()
